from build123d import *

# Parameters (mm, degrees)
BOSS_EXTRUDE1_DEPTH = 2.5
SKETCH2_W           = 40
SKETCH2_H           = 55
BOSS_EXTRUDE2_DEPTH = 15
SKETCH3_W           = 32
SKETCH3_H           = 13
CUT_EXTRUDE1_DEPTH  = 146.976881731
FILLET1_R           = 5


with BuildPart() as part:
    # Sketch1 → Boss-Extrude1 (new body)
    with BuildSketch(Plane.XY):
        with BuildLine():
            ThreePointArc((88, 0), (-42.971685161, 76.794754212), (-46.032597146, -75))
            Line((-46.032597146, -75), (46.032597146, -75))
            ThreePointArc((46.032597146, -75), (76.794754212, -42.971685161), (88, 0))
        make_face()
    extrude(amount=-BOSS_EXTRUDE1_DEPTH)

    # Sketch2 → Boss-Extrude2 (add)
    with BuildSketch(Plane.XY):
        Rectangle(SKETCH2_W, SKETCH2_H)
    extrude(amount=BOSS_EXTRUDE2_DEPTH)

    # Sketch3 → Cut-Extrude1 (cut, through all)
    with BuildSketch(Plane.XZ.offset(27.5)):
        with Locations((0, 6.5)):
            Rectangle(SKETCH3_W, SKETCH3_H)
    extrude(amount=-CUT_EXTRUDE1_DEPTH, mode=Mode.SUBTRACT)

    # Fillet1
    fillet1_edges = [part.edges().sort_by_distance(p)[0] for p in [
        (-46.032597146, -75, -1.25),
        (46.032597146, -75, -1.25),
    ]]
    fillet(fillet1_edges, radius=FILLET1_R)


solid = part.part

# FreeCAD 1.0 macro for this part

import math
import FreeCAD as App
import Part
import Sketcher

V = App.Vector


def edges_at(feature, points):
    """Names of the edges that pass closest to the given points."""
    edges = feature.Shape.Edges
    near = lambda p: min(range(len(edges)), key=lambda i: edges[i].distToShape(Part.Vertex(*p))[0])
    return sorted({f"Edge{near(p) + 1}" for p in points})

doc = App.newDocument("Part")
body = doc.addObject("PartDesign::Body", "Body")

# Sketch on XY plane
sketch1 = body.newObject("Sketcher::SketchObject", "Sketch")
sketch1.AttachmentSupport = (doc.getObject("XY_Plane"), [""])
sketch1.MapMode = "FlatFace"
sketch1.addGeometry([
    Part.ArcOfCircle(Part.Circle(V(0, 0, 0), V(0, 0, 1), 88), math.radians(0), math.radians(238.459731)),
    Part.LineSegment(V(-46.032597, -75, 0), V(46.032597, -75, 0)),
    Part.ArcOfCircle(Part.Circle(V(0, 0, 0), V(0, 0, 1), 88), math.radians(-58.459731), math.radians(0)),
], False)
sketch1.addConstraint([
    Sketcher.Constraint("Coincident", 0, 2, 1, 1),
    Sketcher.Constraint("Coincident", 1, 2, 2, 1),
    Sketcher.Constraint("Tangent", 2, 2, 0, 1),
    Sketcher.Constraint("Horizontal", 1),
    Sketcher.Constraint("Coincident", 0, 3, -1, 1),
    Sketcher.Constraint("Equal", 0, 2),
    Sketcher.Constraint("PointOnObject", 2, 2, -1),
    Sketcher.Constraint("Radius", 0, 88.0),
    Sketcher.Constraint("DistanceY", 0, 2, -1, 1, 75.0),
])
pad1 = body.newObject("PartDesign::Pad", "Pad")
pad1.Profile = sketch1
pad1.Length = 2.5
pad1.Reversed = True

# Sketch on XY plane
sketch2 = body.newObject("Sketcher::SketchObject", "Sketch001")
sketch2.AttachmentSupport = (doc.getObject("XY_Plane"), [""])
sketch2.MapMode = "FlatFace"
sketch2.addGeometry([
    Part.LineSegment(V(-20, 27.5, 0), V(-20, -27.5, 0)),
    Part.LineSegment(V(-20, -27.5, 0), V(20, -27.5, 0)),
    Part.LineSegment(V(20, -27.5, 0), V(20, 27.5, 0)),
    Part.LineSegment(V(20, 27.5, 0), V(-20, 27.5, 0)),
], False)
sketch2.addConstraint([
    Sketcher.Constraint("Coincident", 0, 2, 1, 1),
    Sketcher.Constraint("Coincident", 1, 2, 2, 1),
    Sketcher.Constraint("Coincident", 2, 2, 3, 1),
    Sketcher.Constraint("Coincident", 3, 2, 0, 1),
    Sketcher.Constraint("Vertical", 0),
    Sketcher.Constraint("Horizontal", 1),
    Sketcher.Constraint("Vertical", 2),
    Sketcher.Constraint("Horizontal", 3),
    Sketcher.Constraint("Symmetric", 0, 2, 2, 2, -1, 1),
    Sketcher.Constraint("DistanceX", 1, 1, 1, 2, 40.0),
    Sketcher.Constraint("DistanceY", 0, 2, 0, 1, 55.0),
])
pad2 = body.newObject("PartDesign::Pad", "Pad001")
pad2.Profile = sketch2
pad2.Length = 15

# Sketch on XZ plane
sketch3 = body.newObject("Sketcher::SketchObject", "Sketch002")
sketch3.AttachmentSupport = (doc.getObject("XZ_Plane"), [""])
sketch3.MapMode = "FlatFace"
sketch3.AttachmentOffset = App.Placement(V(0, 0, 27.5), App.Rotation())
sketch3.addGeometry([
    Part.LineSegment(V(-16, 13, 0), V(-16, 0, 0)),
    Part.LineSegment(V(-16, 0, 0), V(16, 0, 0)),
    Part.LineSegment(V(16, 0, 0), V(16, 13, 0)),
    Part.LineSegment(V(16, 13, 0), V(-16, 13, 0)),
], False)
sketch3.addConstraint([
    Sketcher.Constraint("Coincident", 0, 2, 1, 1),
    Sketcher.Constraint("Coincident", 1, 2, 2, 1),
    Sketcher.Constraint("Coincident", 2, 2, 3, 1),
    Sketcher.Constraint("Coincident", 3, 2, 0, 1),
    Sketcher.Constraint("Vertical", 0),
    Sketcher.Constraint("Horizontal", 1),
    Sketcher.Constraint("Vertical", 2),
    Sketcher.Constraint("Horizontal", 3),
    Sketcher.Constraint("Symmetric", 0, 2, 1, 2, -1, 1),
    Sketcher.Constraint("DistanceX", 1, 1, 1, 2, 32.0),
    Sketcher.Constraint("DistanceY", 0, 2, 0, 1, 13.0),
])
pocket1 = body.newObject("PartDesign::Pocket", "Pocket")
pocket1.Profile = sketch3
pocket1.Type = "ThroughAll"
doc.recompute()

fillet = body.newObject("PartDesign::Fillet", "Fillet")
fillet.Base = (pocket1, edges_at(pocket1, [(-46.033, -75, -1.25), (46.033, -75, -1.25)]))
fillet.Radius = 5

doc.recompute()
